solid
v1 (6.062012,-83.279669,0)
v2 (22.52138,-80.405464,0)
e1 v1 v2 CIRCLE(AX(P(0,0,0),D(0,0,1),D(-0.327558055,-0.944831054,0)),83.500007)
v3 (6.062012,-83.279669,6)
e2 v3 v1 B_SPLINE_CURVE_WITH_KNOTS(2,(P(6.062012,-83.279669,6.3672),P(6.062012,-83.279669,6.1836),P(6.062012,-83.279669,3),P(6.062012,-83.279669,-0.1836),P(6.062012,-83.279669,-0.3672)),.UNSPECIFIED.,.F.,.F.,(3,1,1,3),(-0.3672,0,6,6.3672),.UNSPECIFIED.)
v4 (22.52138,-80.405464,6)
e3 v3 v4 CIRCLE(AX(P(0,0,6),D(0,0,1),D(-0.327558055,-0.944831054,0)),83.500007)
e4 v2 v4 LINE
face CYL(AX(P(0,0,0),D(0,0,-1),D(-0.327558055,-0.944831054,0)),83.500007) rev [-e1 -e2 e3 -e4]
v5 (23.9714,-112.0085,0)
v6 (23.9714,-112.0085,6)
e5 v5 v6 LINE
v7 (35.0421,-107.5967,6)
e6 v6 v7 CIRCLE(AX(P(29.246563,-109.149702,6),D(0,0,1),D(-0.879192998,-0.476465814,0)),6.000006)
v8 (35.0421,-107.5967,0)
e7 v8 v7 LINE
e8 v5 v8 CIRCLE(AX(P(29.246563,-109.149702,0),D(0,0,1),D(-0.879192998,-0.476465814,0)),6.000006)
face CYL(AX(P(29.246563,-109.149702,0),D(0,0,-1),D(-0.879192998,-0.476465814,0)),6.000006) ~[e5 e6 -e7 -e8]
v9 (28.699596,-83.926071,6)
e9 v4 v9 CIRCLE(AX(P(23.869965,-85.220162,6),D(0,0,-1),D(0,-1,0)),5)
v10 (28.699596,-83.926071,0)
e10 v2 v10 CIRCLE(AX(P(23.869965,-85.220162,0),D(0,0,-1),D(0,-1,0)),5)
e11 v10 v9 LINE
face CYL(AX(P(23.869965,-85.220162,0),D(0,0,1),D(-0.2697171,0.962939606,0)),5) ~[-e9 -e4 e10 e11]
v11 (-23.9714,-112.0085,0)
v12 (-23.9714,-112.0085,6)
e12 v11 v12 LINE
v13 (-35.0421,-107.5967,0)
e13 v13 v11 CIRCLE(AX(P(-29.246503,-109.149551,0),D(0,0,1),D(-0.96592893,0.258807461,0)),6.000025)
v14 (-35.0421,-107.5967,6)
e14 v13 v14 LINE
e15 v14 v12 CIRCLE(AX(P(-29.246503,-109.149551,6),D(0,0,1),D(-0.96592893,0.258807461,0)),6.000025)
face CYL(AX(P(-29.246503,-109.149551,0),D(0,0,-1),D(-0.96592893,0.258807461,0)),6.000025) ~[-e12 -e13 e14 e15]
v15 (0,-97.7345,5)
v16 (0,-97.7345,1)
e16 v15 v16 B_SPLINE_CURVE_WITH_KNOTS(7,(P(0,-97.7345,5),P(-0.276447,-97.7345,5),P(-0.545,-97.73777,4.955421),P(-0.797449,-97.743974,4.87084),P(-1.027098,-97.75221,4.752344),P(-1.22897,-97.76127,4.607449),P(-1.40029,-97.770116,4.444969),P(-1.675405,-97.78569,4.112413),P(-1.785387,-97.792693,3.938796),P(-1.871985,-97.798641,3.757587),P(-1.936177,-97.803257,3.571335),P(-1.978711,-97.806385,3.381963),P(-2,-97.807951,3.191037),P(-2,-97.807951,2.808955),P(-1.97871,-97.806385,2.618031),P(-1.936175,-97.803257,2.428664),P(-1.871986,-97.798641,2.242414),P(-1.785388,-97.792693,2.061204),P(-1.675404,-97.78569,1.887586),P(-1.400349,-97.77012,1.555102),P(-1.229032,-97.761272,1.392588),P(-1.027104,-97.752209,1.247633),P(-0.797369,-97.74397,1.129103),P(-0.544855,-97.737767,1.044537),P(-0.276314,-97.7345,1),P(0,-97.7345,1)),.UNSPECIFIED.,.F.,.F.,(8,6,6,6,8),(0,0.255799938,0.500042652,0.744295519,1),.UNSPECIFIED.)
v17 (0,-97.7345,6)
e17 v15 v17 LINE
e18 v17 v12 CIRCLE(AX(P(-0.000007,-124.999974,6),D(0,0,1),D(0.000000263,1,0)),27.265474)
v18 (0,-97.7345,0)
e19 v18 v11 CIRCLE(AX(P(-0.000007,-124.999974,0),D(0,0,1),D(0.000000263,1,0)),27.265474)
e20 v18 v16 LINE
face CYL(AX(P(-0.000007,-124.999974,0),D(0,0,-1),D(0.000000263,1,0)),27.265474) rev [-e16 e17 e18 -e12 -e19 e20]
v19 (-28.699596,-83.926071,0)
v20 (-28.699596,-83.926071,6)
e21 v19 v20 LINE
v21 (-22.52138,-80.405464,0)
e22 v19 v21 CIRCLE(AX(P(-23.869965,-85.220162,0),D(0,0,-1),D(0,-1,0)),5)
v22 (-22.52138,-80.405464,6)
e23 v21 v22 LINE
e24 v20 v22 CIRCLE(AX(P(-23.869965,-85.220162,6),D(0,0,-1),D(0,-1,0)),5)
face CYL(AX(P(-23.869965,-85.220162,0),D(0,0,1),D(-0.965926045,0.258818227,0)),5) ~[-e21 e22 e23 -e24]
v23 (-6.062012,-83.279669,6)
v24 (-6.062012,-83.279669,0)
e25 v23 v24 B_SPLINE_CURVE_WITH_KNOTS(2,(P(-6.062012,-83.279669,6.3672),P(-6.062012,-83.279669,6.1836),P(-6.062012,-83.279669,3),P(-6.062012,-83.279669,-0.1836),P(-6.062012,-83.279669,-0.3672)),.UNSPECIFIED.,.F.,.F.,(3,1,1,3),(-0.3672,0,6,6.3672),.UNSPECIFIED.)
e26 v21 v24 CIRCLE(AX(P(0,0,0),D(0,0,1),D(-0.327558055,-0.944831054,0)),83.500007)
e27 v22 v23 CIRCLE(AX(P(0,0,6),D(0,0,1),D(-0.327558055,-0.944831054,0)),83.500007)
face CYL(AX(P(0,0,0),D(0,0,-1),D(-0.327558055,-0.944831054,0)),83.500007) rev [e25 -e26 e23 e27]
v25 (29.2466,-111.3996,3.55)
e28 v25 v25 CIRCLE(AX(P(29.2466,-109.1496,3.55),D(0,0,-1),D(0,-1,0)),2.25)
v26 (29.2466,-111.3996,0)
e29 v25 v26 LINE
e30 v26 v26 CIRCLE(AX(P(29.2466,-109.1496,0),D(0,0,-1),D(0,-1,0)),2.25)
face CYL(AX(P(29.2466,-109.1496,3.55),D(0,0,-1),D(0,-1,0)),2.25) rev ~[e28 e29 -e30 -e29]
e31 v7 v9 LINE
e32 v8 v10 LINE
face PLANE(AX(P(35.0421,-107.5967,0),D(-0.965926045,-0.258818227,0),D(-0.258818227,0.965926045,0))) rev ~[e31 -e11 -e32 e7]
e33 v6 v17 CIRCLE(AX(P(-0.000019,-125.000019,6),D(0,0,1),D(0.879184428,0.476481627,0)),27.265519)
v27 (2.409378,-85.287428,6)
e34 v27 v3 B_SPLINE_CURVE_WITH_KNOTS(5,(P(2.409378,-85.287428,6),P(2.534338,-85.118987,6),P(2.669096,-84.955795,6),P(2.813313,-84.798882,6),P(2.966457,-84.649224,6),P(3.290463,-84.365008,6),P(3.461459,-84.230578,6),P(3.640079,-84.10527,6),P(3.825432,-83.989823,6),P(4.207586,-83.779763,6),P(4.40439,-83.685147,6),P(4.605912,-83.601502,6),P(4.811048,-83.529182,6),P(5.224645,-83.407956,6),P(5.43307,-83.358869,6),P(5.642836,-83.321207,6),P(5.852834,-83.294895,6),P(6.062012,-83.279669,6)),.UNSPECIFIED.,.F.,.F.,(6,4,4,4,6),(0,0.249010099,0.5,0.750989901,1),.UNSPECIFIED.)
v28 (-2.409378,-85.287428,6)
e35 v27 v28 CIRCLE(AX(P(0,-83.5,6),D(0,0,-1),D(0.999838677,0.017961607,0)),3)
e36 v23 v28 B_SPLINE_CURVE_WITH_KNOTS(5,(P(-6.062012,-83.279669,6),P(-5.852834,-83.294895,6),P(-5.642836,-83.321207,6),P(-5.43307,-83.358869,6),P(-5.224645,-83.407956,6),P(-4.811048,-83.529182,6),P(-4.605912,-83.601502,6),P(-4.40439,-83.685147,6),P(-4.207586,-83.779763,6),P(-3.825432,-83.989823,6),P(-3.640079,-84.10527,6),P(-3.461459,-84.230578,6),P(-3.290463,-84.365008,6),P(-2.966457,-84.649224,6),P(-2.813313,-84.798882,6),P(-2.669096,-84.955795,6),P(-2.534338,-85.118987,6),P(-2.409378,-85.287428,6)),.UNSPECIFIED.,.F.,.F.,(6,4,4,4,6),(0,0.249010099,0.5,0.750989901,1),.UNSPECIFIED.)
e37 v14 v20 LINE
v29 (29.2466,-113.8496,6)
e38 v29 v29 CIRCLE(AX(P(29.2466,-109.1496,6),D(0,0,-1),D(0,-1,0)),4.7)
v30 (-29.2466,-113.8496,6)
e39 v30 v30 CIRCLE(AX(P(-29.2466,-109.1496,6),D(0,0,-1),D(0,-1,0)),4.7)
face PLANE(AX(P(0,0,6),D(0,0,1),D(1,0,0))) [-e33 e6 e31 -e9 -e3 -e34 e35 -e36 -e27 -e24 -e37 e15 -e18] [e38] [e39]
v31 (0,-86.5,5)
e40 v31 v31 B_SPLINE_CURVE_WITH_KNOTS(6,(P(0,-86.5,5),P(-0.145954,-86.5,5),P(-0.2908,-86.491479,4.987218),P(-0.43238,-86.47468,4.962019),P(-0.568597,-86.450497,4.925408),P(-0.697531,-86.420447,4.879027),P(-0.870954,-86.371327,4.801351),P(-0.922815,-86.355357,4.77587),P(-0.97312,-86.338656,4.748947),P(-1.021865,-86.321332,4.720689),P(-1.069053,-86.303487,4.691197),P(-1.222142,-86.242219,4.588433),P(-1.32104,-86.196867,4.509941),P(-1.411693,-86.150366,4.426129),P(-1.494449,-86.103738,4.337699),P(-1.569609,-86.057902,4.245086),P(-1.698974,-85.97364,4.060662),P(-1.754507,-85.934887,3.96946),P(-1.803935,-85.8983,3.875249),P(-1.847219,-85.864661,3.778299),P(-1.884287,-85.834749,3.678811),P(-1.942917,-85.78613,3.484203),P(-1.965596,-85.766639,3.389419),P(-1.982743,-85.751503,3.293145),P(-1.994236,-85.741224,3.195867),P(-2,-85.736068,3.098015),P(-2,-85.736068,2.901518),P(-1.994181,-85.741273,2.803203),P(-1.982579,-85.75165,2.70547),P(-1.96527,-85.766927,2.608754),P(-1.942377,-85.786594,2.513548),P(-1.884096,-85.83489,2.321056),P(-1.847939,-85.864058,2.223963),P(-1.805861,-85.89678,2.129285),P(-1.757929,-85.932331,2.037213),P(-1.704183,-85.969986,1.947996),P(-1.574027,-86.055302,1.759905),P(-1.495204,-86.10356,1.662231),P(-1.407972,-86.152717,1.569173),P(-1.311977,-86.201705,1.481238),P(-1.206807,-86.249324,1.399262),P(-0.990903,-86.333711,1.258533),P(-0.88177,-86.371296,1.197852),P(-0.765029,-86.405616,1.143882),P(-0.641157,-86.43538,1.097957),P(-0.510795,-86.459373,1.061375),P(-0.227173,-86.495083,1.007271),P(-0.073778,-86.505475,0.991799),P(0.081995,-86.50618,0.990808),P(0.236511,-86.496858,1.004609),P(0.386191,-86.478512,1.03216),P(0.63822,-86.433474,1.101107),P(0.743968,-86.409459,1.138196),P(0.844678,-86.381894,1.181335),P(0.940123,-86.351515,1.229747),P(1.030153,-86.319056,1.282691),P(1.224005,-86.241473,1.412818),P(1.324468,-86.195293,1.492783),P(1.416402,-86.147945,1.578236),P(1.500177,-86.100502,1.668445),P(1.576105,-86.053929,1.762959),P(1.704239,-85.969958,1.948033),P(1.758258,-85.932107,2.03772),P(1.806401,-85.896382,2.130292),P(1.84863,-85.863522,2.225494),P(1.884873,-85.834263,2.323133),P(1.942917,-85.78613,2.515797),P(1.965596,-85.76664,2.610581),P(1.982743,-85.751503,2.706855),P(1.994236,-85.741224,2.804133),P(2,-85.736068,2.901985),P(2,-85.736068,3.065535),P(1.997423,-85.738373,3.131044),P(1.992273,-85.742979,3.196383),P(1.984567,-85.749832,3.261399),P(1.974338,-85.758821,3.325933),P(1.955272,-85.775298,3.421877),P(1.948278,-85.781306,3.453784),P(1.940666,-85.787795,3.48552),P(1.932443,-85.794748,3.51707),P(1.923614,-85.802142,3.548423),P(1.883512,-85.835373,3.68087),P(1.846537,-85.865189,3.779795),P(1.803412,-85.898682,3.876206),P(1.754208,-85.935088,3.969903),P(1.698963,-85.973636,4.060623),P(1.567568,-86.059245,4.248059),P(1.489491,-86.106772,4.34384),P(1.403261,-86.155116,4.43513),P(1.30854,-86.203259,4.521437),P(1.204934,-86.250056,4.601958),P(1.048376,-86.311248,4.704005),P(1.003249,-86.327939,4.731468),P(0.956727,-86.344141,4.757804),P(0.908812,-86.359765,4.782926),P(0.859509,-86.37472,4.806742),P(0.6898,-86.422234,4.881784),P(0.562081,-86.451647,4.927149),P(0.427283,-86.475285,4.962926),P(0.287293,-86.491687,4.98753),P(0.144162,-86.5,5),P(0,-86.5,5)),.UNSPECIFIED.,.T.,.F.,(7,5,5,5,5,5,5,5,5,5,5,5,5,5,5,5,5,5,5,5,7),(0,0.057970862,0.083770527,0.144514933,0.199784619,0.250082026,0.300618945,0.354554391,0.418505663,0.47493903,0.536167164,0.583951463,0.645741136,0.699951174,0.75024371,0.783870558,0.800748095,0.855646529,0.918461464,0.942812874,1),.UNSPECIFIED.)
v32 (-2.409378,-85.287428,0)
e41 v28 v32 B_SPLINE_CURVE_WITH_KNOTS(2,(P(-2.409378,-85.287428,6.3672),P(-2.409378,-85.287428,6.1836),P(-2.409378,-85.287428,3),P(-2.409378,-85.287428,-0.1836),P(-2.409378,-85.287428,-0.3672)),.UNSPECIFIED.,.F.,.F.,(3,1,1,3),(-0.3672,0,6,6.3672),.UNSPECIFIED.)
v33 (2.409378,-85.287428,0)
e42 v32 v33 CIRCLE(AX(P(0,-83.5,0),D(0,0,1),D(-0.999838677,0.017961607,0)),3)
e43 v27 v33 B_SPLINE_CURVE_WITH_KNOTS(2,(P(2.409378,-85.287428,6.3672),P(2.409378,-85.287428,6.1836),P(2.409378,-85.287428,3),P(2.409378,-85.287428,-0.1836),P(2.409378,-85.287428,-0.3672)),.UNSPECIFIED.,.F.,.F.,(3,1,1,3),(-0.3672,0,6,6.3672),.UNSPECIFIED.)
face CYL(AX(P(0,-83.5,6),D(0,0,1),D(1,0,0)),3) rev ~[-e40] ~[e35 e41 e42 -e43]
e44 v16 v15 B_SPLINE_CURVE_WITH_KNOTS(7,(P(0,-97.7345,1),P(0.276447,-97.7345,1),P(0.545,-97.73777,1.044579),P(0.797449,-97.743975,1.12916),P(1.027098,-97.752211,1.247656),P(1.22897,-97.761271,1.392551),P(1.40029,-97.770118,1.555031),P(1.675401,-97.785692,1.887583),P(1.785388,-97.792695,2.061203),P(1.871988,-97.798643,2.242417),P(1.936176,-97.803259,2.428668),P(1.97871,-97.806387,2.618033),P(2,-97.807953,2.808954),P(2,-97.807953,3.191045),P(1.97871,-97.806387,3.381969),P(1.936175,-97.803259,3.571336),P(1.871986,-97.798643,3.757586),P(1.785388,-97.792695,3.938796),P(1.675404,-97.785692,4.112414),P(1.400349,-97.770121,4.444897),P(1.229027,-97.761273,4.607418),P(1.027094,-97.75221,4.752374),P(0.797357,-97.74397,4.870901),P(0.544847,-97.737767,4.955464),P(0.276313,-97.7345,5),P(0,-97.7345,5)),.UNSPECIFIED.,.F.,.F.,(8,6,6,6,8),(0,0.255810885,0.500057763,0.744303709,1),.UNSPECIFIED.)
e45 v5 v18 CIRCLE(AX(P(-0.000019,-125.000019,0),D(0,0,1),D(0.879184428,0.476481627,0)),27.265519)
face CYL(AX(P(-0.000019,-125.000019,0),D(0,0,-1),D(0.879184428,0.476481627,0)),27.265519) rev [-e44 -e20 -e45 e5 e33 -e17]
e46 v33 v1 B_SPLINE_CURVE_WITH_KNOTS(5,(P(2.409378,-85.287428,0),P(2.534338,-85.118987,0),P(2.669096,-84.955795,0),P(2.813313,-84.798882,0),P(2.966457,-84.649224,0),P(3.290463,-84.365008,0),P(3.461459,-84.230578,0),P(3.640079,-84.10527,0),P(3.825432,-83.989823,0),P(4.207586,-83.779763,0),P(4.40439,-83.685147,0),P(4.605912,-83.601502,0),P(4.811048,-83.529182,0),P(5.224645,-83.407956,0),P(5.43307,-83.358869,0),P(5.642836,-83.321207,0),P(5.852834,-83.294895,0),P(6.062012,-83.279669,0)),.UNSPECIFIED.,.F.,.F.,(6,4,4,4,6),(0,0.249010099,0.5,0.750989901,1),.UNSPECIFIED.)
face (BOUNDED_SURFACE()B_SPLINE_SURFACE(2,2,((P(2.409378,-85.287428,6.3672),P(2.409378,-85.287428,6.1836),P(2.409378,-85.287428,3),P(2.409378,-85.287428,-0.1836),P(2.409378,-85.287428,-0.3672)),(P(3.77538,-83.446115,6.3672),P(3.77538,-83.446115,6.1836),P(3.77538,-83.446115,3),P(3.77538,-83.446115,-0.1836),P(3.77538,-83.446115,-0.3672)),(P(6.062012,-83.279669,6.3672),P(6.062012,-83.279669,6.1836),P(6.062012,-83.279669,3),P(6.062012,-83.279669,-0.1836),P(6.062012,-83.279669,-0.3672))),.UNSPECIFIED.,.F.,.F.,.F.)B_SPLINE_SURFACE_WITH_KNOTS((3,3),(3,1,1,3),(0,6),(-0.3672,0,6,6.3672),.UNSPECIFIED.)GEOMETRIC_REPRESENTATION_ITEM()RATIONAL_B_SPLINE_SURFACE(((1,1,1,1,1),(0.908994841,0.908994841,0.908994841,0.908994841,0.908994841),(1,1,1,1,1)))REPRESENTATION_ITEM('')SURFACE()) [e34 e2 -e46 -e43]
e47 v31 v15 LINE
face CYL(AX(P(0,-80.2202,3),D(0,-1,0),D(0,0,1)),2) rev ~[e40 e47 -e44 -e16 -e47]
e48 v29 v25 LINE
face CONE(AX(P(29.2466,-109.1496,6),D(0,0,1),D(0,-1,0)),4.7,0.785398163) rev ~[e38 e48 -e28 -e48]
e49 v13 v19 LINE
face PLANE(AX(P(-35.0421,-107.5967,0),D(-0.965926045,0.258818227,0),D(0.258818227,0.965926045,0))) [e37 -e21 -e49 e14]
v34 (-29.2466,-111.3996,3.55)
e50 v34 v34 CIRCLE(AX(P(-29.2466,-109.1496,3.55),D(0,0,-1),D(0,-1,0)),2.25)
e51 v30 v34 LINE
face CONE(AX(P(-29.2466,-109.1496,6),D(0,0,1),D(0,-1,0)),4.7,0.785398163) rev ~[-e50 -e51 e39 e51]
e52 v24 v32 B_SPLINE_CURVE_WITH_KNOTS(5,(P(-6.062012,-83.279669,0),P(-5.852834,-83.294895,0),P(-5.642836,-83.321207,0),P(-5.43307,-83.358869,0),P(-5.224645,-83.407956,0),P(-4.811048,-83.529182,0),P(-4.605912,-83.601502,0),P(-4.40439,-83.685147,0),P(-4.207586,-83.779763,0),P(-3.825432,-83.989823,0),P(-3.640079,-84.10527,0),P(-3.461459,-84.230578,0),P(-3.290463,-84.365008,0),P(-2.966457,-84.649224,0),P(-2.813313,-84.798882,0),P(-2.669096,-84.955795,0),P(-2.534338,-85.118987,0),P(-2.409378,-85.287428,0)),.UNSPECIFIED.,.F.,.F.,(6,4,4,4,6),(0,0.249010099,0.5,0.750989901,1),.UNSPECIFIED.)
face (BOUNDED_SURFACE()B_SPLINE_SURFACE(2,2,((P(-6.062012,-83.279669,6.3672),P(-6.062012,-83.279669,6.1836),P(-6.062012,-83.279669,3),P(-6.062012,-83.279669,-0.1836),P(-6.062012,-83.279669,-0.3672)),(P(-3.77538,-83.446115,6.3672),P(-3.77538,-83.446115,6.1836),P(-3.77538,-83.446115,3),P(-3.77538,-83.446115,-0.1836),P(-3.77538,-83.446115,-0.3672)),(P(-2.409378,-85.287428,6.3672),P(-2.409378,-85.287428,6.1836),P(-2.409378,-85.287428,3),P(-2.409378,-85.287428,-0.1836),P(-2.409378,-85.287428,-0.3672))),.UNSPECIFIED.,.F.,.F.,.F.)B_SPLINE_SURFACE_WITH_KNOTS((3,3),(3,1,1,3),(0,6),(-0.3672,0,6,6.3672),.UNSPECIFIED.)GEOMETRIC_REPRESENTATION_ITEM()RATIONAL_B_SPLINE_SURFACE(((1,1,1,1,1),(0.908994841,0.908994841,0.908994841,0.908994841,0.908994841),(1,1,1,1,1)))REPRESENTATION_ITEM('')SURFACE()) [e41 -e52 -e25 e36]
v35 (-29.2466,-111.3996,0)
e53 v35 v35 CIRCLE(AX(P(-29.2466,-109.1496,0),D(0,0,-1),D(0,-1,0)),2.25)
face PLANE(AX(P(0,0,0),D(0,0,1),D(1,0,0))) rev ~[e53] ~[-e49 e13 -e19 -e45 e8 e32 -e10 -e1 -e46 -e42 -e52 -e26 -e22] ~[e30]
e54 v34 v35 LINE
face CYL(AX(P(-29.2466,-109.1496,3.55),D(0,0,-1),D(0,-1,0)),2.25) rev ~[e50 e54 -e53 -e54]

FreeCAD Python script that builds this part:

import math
import FreeCAD as App
import Part
import Sketcher
Q = App.Units.Quantity


def edges_at(feature, points):
    """Names of the edges that pass closest to the given points."""
    edges = feature.Shape.Edges
    near = lambda p: min(range(len(edges)), key=lambda i: edges[i].distToShape(Part.Vertex(*p))[0])
    return sorted({f"Edge{near(p) + 1}" for p in points})

doc = App.newDocument("Part")
body = doc.addObject("PartDesign::Body", "Body")

# Sketch on XY plane
sketch1 = body.newObject("Sketcher::SketchObject", "Sketch")
sketch1.AttachmentSupport = (doc.getObject("XY_Plane"), [""])
sketch1.MapMode = "FlatFace"
sketch1.addGeometry([
    Part.LineSegment(App.Vector(-27, -79, 0), App.Vector(-35, -108, 0)),  # 0
    Part.ArcOfCircle(Part.Circle(App.Vector(-29, -109, 0), App.Vector(0, 0, 1), 6), math.radians(165), math.radians(332)),  # 1
    Part.ArcOfCircle(Part.Circle(App.Vector(0, -125, 0), App.Vector(0, 0, 1), 27), math.radians(90), math.radians(152)),  # 2
    Part.ArcOfCircle(Part.Circle(App.Vector(0, -125, 0), App.Vector(0, 0, 1), 27), math.radians(28), math.radians(90)),  # 3
    Part.ArcOfCircle(Part.Circle(App.Vector(29, -109, 0), App.Vector(0, 0, 1), 6), math.radians(-152), math.radians(15)),  # 4
    Part.LineSegment(App.Vector(35, -108, 0), App.Vector(27, -79, 0)),  # 5
    Part.ArcOfCircle(Part.Circle(App.Vector(0, 0, 0), App.Vector(0, 0, 1), 84), math.radians(-109), math.radians(-71)),  # 6
], False)
sketch1.addConstraint([
    Sketcher.Constraint("Tangent", 0, 2, 1, 1),
    Sketcher.Constraint("Tangent", 1, 2, 2, 2),
    Sketcher.Constraint("Tangent", 2, 1, 3, 2),
    Sketcher.Constraint("Tangent", 3, 1, 4, 1),
    Sketcher.Constraint("Tangent", 4, 2, 5, 1),
    Sketcher.Constraint("Coincident", 5, 2, 6, 2),
    Sketcher.Constraint("Coincident", 6, 1, 0, 1),
    Sketcher.Constraint("Coincident", 6, 3, -1, 1),
    Sketcher.Constraint("Equal", 2, 3),
    Sketcher.Constraint("Equal", 1, 4),
    Sketcher.Constraint("Symmetric", 1, 3, 4, 3, -2),
    Sketcher.Constraint("PointOnObject", 2, 1, -2),
    Sketcher.Constraint("Horizontal", 0, 2, 4, 2),
    Sketcher.Constraint("Radius", 1, Q("6 mm")),
    Sketcher.Constraint("Radius", 6, Q("83.5 mm")),
    Sketcher.Constraint("DistanceY", 2, 3, -1, 1, Q("125 mm")),
    Sketcher.Constraint("Angle", 0, Q("-105 deg")),
    Sketcher.Constraint("Radius", 2, Q("27.2655 mm")),
    Sketcher.Constraint("DistanceX", 0, 2, -1, 1, Q("35.042 mm")),
])
pad1 = body.newObject("PartDesign::Pad", "Pad")
pad1.Profile = sketch1
pad1.Length = 6

# Sketch on XY plane
sketch2 = body.newObject("Sketcher::SketchObject", "Sketch001")
sketch2.AttachmentSupport = (doc.getObject("XY_Plane"), [""])
sketch2.MapMode = "FlatFace"
sketch2.AttachmentOffset = App.Placement(App.Vector(0, 0, 6), App.Rotation())
sketch2.addGeometry([
    Part.Circle(App.Vector(-29.2, -109.1, 0), App.Vector(0, 0, 1), 2.2),
    Part.Circle(App.Vector(29.2, -109.1, 0), App.Vector(0, 0, 1), 2.2),
], False)
sketch2.addConstraint([
    Sketcher.Constraint("Equal", 0, 1),
    Sketcher.Constraint("Symmetric", 0, 3, 1, 3, -2),
    Sketcher.Constraint("Diameter", 0, Q("4.5 mm")),
    Sketcher.Constraint("DistanceX", 0, 3, -1, 1, Q("29.2466 mm")),
    Sketcher.Constraint("DistanceY", 0, 3, -1, 1, Q("109.1496 mm")),
])
doc.recompute()
hole = body.newObject("PartDesign::Hole", "Hole")
hole.Profile = sketch2
hole.ThreadType = "None"
hole.Diameter = 4.5
hole.DepthType = "ThroughAll"
hole.HoleCutType = "Countersink"
hole.HoleCutDiameter = 9.4
hole.HoleCutCountersinkAngle = 90
doc.recompute()

fillet = body.newObject("PartDesign::Fillet", "Fillet")
fillet.Base = (hole, edges_at(hole, [(-27.351, -78.893, 3), (27.351, -78.893, 3)]))
fillet.Radius = 5

# Sketch on XZ plane
sketch3 = body.newObject("Sketcher::SketchObject", "Sketch002")
sketch3.AttachmentSupport = (doc.getObject("XZ_Plane"), [""])
sketch3.MapMode = "FlatFace"
sketch3.AttachmentOffset = App.Placement(App.Vector(0, 0, 80.2202), App.Rotation())
sketch3.addGeometry(Part.Circle(App.Vector(0, 3, 0), App.Vector(0, 0, 1), 2), False)
sketch3.addConstraint([
    Sketcher.Constraint("PointOnObject", 0, 3, -2),
    Sketcher.Constraint("Diameter", 0, Q("4 mm")),
    Sketcher.Constraint("DistanceY", -1, 1, 0, 3, Q("3 mm")),
])
doc.recompute()
hole2 = body.newObject("PartDesign::Hole", "Hole001")
hole2.Profile = sketch3
hole2.ThreadType = "None"
hole2.Diameter = 4
hole2.DepthType = "ThroughAll"
hole2.Reversed = True

# Sketch on XY plane
sketch4 = body.newObject("Sketcher::SketchObject", "Sketch003")
sketch4.AttachmentSupport = (doc.getObject("XY_Plane"), [""])
sketch4.MapMode = "FlatFace"
sketch4.AttachmentOffset = App.Placement(App.Vector(0, 0, 6), App.Rotation())
sketch4.addGeometry(Part.Circle(App.Vector(0, -83.5, 0), App.Vector(0, 0, 1), 3), False)
sketch4.addConstraint([
    Sketcher.Constraint("PointOnObject", 0, 3, -2),
    Sketcher.Constraint("Diameter", 0, Q("6 mm")),
    Sketcher.Constraint("DistanceY", 0, 3, -1, 1, Q("83.5 mm")),
])
pocket1 = body.newObject("PartDesign::Pocket", "Pocket")
pocket1.Profile = sketch4
pocket1.Type = "ThroughAll"
doc.recompute()

fillet2 = body.newObject("PartDesign::Fillet", "Fillet001")
fillet2.Base = (pocket1, edges_at(pocket1, [(-2.999, -83.446, 3), (2.999, -83.446, 3)]))
fillet2.Radius = 5

doc.recompute()
